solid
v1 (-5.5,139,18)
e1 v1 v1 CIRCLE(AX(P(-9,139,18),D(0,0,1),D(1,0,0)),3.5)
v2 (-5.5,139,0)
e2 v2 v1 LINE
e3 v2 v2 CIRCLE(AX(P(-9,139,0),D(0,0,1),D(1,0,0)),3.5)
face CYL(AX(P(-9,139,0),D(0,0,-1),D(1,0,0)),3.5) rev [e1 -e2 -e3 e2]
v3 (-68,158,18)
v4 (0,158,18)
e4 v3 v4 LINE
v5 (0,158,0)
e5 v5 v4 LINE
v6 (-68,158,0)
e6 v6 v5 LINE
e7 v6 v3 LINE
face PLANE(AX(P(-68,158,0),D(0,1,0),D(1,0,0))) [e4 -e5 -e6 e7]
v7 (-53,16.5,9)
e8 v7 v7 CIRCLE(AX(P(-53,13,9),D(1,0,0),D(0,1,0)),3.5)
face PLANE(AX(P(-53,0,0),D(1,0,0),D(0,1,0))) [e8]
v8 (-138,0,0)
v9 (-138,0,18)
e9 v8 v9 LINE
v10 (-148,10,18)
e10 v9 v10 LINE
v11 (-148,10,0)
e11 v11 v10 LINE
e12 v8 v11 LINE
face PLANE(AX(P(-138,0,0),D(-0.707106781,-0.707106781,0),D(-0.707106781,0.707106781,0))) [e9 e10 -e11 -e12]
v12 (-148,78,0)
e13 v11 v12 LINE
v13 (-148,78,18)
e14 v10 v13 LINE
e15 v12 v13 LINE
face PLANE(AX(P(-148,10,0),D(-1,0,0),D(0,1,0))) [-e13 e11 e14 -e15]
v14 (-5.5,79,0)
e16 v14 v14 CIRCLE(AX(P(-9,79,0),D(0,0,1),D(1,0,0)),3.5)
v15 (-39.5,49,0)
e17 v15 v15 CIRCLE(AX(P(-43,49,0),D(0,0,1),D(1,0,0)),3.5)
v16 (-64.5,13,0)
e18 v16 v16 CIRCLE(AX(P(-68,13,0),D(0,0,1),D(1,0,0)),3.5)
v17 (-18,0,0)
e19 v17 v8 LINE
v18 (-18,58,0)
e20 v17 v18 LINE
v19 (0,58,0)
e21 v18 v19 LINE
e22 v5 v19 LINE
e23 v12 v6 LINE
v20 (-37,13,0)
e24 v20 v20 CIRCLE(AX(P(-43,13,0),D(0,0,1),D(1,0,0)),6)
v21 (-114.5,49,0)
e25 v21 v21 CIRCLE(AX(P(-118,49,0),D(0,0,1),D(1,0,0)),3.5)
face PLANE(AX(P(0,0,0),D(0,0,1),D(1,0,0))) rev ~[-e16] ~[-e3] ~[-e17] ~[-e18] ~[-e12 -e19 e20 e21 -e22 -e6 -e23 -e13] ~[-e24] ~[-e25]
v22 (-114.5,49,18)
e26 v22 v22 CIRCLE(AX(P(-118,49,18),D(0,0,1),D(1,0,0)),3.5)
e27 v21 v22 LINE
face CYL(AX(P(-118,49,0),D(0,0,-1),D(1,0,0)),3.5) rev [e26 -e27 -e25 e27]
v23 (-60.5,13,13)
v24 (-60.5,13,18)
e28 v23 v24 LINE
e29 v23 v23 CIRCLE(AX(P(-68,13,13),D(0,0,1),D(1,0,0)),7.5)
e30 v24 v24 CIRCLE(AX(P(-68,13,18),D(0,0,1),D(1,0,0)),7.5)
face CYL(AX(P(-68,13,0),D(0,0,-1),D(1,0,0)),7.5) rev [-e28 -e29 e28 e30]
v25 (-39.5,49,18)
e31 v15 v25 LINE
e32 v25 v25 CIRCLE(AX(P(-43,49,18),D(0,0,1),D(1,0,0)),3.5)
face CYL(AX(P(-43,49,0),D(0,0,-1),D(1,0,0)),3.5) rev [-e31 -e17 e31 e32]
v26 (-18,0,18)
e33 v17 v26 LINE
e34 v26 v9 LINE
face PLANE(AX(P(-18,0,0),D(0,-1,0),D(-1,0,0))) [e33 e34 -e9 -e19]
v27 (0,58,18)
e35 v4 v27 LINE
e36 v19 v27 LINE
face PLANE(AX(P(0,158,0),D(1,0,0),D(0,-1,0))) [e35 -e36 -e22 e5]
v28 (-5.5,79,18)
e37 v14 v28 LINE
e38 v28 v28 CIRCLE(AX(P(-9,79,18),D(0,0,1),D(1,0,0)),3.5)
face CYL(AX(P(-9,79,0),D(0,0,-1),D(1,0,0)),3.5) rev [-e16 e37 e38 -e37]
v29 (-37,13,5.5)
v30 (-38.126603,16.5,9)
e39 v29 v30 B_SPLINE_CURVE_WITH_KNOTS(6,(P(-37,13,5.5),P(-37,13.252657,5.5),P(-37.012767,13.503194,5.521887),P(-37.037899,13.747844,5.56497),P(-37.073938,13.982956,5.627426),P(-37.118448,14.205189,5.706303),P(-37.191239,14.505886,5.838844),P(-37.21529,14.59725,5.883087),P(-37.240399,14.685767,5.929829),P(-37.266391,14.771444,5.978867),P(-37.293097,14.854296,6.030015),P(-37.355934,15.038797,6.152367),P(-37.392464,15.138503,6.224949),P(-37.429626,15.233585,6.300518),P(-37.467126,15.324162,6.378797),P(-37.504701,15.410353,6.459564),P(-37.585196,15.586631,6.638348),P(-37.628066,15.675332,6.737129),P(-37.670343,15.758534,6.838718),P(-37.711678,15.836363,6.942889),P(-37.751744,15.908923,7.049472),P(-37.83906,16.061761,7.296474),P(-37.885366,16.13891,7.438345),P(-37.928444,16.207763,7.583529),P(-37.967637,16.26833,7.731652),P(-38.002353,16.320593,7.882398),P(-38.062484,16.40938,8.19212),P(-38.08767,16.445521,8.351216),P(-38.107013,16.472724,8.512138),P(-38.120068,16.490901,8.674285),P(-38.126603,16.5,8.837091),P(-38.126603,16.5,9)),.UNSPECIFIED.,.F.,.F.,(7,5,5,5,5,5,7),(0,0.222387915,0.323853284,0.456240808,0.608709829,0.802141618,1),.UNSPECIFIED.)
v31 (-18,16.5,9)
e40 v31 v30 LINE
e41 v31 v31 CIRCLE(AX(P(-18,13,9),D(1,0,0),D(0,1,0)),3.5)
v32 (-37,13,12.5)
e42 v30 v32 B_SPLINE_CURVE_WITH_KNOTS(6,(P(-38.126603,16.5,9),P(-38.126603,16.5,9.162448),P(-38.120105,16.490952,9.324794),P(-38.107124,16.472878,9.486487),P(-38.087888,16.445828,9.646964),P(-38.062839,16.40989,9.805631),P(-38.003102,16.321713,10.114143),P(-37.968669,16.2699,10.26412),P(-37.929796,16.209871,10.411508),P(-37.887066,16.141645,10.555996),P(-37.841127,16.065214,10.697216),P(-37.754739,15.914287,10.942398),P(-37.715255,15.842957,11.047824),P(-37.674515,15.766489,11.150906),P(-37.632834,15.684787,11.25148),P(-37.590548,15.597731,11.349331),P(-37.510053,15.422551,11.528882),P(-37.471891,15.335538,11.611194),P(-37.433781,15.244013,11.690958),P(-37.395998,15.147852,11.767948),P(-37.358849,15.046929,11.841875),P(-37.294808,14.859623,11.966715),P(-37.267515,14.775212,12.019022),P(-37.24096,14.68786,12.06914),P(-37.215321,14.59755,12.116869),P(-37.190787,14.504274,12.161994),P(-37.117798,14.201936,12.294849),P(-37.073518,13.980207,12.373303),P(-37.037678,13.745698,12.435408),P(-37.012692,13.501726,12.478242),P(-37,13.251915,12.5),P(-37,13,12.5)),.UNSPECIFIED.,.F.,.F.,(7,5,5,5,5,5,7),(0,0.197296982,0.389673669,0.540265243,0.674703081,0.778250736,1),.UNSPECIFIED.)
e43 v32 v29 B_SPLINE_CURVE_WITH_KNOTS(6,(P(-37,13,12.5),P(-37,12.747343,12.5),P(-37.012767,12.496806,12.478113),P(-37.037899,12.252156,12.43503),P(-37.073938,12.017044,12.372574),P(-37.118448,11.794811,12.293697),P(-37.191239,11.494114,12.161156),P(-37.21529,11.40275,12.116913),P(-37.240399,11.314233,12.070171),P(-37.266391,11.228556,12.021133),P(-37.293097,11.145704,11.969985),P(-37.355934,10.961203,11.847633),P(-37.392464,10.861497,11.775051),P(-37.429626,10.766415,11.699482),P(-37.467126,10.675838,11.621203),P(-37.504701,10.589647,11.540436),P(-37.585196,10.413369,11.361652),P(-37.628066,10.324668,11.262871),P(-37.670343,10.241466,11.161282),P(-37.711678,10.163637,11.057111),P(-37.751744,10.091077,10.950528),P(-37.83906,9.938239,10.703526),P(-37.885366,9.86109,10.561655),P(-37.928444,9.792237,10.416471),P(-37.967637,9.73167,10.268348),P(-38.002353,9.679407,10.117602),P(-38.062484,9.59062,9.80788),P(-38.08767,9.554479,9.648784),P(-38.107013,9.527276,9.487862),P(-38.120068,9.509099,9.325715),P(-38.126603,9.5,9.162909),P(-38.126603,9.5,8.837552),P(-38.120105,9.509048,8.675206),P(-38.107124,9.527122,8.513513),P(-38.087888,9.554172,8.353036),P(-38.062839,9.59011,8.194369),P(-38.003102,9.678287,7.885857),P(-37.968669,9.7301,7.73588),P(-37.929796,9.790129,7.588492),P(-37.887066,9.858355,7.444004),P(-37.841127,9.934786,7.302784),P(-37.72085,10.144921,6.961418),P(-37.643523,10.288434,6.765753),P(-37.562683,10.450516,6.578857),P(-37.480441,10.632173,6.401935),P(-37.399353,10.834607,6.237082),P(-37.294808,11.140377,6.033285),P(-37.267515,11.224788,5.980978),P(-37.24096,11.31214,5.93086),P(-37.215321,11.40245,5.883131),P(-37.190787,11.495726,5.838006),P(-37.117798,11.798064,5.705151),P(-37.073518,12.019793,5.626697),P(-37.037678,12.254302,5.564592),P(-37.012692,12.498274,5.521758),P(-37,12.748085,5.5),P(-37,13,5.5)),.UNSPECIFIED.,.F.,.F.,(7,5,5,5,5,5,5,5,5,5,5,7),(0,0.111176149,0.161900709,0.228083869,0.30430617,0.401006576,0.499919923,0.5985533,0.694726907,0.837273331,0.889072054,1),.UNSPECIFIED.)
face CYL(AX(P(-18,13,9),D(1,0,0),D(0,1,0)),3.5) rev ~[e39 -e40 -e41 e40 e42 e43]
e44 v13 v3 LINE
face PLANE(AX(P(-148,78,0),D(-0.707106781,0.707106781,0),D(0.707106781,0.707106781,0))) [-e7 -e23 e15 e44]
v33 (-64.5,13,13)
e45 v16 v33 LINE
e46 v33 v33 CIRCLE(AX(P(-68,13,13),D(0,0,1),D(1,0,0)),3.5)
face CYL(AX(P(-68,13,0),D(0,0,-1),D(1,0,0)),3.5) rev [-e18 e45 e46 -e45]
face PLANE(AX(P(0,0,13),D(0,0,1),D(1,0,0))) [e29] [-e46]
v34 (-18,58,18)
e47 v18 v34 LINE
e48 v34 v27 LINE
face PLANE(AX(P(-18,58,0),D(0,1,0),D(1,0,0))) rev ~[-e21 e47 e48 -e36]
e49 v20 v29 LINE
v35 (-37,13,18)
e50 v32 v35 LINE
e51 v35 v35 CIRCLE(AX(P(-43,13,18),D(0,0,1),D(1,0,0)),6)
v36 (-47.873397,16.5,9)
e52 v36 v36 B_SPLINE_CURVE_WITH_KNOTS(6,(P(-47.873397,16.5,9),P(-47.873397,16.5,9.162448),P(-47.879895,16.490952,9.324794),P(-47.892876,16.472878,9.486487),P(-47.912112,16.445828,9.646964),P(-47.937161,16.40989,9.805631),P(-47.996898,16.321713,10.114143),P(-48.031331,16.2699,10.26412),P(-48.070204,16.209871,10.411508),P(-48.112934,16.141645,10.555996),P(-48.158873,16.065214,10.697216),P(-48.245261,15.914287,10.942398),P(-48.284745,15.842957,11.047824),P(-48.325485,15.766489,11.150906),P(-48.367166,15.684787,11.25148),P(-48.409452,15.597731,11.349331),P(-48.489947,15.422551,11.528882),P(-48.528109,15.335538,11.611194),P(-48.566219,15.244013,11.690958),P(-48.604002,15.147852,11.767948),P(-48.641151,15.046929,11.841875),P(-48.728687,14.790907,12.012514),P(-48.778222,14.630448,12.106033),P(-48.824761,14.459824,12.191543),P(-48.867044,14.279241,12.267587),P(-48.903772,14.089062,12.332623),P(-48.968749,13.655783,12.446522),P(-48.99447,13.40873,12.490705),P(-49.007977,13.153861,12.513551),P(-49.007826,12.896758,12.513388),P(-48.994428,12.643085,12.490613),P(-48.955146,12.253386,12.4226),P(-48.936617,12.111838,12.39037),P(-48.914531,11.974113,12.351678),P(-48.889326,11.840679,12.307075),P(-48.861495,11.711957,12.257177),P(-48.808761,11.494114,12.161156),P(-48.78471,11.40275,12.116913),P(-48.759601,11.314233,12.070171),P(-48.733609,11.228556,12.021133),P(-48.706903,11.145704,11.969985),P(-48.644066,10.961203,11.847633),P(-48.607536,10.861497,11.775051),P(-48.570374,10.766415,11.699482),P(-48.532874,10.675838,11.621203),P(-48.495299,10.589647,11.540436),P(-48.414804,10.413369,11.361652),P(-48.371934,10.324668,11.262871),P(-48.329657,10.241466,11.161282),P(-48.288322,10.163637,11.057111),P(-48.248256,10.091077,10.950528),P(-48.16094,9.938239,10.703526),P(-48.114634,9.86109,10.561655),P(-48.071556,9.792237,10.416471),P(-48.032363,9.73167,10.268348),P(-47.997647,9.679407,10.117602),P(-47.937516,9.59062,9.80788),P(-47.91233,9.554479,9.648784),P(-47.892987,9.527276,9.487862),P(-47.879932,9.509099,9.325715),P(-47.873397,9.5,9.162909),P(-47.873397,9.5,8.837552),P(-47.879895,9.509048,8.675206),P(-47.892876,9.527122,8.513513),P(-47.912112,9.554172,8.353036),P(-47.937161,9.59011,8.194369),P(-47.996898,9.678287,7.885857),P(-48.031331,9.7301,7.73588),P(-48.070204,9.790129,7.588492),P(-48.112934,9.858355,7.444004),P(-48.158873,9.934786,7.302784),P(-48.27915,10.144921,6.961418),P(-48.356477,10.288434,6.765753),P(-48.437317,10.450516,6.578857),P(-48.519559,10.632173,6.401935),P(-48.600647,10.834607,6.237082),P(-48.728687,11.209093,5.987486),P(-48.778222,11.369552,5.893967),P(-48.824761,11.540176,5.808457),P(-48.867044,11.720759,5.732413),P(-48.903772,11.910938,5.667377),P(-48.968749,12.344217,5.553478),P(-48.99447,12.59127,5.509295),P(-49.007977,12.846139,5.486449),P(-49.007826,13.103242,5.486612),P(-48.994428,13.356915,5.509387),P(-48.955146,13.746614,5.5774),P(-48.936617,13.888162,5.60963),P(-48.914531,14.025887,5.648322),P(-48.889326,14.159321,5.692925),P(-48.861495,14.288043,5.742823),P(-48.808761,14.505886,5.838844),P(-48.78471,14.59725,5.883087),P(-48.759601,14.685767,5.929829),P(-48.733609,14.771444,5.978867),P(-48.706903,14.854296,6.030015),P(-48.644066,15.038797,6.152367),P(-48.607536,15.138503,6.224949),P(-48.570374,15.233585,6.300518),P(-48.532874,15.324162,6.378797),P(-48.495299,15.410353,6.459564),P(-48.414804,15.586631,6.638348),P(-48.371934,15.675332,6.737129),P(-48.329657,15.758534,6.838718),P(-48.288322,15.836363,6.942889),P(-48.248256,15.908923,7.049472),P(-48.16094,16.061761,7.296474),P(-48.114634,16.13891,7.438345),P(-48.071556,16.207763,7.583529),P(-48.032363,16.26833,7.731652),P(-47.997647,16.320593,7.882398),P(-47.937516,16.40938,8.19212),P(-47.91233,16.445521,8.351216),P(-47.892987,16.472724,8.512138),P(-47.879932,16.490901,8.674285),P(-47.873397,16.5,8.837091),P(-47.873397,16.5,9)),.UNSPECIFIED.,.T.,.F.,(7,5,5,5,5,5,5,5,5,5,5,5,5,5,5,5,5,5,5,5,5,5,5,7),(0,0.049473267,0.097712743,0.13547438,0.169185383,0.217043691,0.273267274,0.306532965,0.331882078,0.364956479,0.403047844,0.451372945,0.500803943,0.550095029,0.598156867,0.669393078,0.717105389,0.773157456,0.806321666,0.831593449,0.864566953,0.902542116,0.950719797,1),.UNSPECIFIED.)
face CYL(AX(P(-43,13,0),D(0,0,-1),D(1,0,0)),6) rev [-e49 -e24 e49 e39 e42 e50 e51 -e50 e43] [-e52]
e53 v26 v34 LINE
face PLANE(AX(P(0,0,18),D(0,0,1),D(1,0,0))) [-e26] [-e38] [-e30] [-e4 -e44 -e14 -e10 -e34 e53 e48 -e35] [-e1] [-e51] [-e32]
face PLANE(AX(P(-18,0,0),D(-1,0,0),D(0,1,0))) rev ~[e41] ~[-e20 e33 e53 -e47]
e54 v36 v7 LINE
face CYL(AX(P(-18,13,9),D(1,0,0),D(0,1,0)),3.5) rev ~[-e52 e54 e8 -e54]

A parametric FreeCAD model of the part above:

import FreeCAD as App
import Part
import Sketcher
from FreeCAD import Vector


def add_polygon(sketch, points):
    """Adds a closed chain of lines whose ends are joined by coincident constraints."""
    first, n = sketch.GeometryCount, len(points)
    for a, b in zip(points, points[1:] + points[:1]):
        sketch.addGeometry(Part.LineSegment(App.Vector(*a, 0), App.Vector(*b, 0)), False)
    for i in range(n):
        sketch.addConstraint(Sketcher.Constraint("Coincident", first + i, 2, first + (i + 1) % n, 1))

doc = App.newDocument("Part")
body = doc.addObject("PartDesign::Body", "Body")

# Sketch on XY plane
sketch1 = body.newObject("Sketcher::SketchObject", "Sketch")
sketch1.AttachmentSupport = (doc.getObject("XY_Plane"), [""])
sketch1.MapMode = "FlatFace"
sketch1.addGeometry([
    Part.Circle(Vector(-68, 13, 0), Vector(0, 0, 1), 7.5),
    Part.Circle(Vector(-68, 13, 0), Vector(0, 0, 1), 3.5),
], False)
sketch1.addConstraint([
    Sketcher.Constraint("Coincident", 1, 3, 0, 3),
    Sketcher.Constraint("Diameter", 0, 15.0),
    Sketcher.Constraint("Diameter", 1, 7.0),
    Sketcher.Constraint("DistanceX", 0, 3, -1, 1, 68.0),
    Sketcher.Constraint("DistanceY", -1, 1, 0, 3, 13.0),
])
pad1 = body.newObject("PartDesign::Pad", "Pad")
pad1.Profile = sketch1
pad1.Length = 13

# Sketch on XY plane
sketch2 = body.newObject("Sketcher::SketchObject", "Sketch001")
sketch2.AttachmentSupport = (doc.getObject("XY_Plane"), [""])
sketch2.MapMode = "FlatFace"
add_polygon(sketch2, [(-138, 0), (-18, 0), (-18, 58), (0, 58), (0, 158), (-68, 158), (-148, 78), (-148, 10)])  # lines 0-7
sketch2.addGeometry(Part.Circle(Vector(-118, 49, 0), Vector(0, 0, 1), 3.5), False)  # 8
sketch2.addGeometry(Part.Circle(Vector(-68, 13, 0), Vector(0, 0, 1), 7.5), False)  # 9
sketch2.addGeometry(Part.Circle(Vector(-43, 13, 0), Vector(0, 0, 1), 6), False)  # 10
sketch2.addGeometry(Part.Circle(Vector(-43, 49, 0), Vector(0, 0, 1), 3.5), False)  # 11
sketch2.addGeometry(Part.Circle(Vector(-9, 79, 0), Vector(0, 0, 1), 3.5), False)  # 12
sketch2.addGeometry(Part.Circle(Vector(-9, 139, 0), Vector(0, 0, 1), 3.5), False)  # 13
sketch2.addConstraint([
    Sketcher.Constraint("Horizontal", 0),
    Sketcher.Constraint("Vertical", 1),
    Sketcher.Constraint("Horizontal", 2),
    Sketcher.Constraint("Vertical", 3),
    Sketcher.Constraint("Horizontal", 4),
    Sketcher.Constraint("Vertical", 6),
    Sketcher.Constraint("Equal", 8, 11),
    Sketcher.Constraint("Equal", 11, 12),
    Sketcher.Constraint("Equal", 12, 13),
    Sketcher.Constraint("PointOnObject", 0, 2, -1),
    Sketcher.Constraint("PointOnObject", 2, 2, -2),
    Sketcher.Constraint("Perpendicular", 5, 7),
    Sketcher.Constraint("Horizontal", 9, 3, 10, 3),
    Sketcher.Constraint("Horizontal", 8, 3, 11, 3),
    Sketcher.Constraint("Vertical", 10, 3, 11, 3),
    Sketcher.Constraint("Vertical", 12, 3, 13, 3),
    Sketcher.Constraint("Vertical", 9, 3, 4, 2),
    Sketcher.Constraint("Equal", 4, 6),
    Sketcher.Constraint("Diameter", 8, 7.0),
    Sketcher.Constraint("Diameter", 9, 15.0),
    Sketcher.Constraint("Diameter", 10, 12.0),
    Sketcher.Constraint("DistanceX", 2, 1, 2, 2, 18.0),
    Sketcher.Constraint("DistanceX", 4, 2, 4, 1, 68.0),
    Sketcher.Constraint("DistanceY", 1, 1, 1, 2, 58.0),
    Sketcher.Constraint("DistanceY", -1, 1, 8, 3, 49.0),
    Sketcher.Constraint("DistanceY", -1, 1, 9, 3, 13.0),
    Sketcher.Constraint("DistanceX", 12, 3, -1, 1, 9.0),
    Sketcher.Constraint("DistanceY", -1, 1, 3, 2, 158.0),
    Sketcher.Constraint("DistanceX", 5, 2, -1, 1, 148.0),
    Sketcher.Constraint("DistanceY", -1, 1, 6, 2, 10.0),
    Sketcher.Constraint("DistanceX", 9, 3, 10, 3, 25.0),
    Sketcher.Constraint("DistanceX", 8, 3, 10, 3, 75.0),
    Sketcher.Constraint("DistanceY", 12, 3, 13, 3, 60.0),
    Sketcher.Constraint("DistanceY", 1, 2, 12, 3, 21.0),
])
pad2 = body.newObject("PartDesign::Pad", "Pad001")
pad2.Profile = sketch2
pad2.Length = 18

# Sketch on YZ plane
sketch3 = body.newObject("Sketcher::SketchObject", "Sketch002")
sketch3.AttachmentSupport = (doc.getObject("YZ_Plane"), [""])
sketch3.MapMode = "FlatFace"
sketch3.AttachmentOffset = App.Placement(Vector(0, 0, -18), App.Rotation())
sketch3.addGeometry(Part.Circle(Vector(13, 9, 0), Vector(0, 0, 1), 3.5), False)
sketch3.addConstraint([
    Sketcher.Constraint("Diameter", 0, 7.0),
    Sketcher.Constraint("DistanceX", -1, 1, 0, 3, 13.0),
    Sketcher.Constraint("DistanceY", -1, 1, 0, 3, 9.0),
])
pocket1 = body.newObject("PartDesign::Pocket", "Pocket")
pocket1.Profile = sketch3
pocket1.Length = 35

doc.recompute()
